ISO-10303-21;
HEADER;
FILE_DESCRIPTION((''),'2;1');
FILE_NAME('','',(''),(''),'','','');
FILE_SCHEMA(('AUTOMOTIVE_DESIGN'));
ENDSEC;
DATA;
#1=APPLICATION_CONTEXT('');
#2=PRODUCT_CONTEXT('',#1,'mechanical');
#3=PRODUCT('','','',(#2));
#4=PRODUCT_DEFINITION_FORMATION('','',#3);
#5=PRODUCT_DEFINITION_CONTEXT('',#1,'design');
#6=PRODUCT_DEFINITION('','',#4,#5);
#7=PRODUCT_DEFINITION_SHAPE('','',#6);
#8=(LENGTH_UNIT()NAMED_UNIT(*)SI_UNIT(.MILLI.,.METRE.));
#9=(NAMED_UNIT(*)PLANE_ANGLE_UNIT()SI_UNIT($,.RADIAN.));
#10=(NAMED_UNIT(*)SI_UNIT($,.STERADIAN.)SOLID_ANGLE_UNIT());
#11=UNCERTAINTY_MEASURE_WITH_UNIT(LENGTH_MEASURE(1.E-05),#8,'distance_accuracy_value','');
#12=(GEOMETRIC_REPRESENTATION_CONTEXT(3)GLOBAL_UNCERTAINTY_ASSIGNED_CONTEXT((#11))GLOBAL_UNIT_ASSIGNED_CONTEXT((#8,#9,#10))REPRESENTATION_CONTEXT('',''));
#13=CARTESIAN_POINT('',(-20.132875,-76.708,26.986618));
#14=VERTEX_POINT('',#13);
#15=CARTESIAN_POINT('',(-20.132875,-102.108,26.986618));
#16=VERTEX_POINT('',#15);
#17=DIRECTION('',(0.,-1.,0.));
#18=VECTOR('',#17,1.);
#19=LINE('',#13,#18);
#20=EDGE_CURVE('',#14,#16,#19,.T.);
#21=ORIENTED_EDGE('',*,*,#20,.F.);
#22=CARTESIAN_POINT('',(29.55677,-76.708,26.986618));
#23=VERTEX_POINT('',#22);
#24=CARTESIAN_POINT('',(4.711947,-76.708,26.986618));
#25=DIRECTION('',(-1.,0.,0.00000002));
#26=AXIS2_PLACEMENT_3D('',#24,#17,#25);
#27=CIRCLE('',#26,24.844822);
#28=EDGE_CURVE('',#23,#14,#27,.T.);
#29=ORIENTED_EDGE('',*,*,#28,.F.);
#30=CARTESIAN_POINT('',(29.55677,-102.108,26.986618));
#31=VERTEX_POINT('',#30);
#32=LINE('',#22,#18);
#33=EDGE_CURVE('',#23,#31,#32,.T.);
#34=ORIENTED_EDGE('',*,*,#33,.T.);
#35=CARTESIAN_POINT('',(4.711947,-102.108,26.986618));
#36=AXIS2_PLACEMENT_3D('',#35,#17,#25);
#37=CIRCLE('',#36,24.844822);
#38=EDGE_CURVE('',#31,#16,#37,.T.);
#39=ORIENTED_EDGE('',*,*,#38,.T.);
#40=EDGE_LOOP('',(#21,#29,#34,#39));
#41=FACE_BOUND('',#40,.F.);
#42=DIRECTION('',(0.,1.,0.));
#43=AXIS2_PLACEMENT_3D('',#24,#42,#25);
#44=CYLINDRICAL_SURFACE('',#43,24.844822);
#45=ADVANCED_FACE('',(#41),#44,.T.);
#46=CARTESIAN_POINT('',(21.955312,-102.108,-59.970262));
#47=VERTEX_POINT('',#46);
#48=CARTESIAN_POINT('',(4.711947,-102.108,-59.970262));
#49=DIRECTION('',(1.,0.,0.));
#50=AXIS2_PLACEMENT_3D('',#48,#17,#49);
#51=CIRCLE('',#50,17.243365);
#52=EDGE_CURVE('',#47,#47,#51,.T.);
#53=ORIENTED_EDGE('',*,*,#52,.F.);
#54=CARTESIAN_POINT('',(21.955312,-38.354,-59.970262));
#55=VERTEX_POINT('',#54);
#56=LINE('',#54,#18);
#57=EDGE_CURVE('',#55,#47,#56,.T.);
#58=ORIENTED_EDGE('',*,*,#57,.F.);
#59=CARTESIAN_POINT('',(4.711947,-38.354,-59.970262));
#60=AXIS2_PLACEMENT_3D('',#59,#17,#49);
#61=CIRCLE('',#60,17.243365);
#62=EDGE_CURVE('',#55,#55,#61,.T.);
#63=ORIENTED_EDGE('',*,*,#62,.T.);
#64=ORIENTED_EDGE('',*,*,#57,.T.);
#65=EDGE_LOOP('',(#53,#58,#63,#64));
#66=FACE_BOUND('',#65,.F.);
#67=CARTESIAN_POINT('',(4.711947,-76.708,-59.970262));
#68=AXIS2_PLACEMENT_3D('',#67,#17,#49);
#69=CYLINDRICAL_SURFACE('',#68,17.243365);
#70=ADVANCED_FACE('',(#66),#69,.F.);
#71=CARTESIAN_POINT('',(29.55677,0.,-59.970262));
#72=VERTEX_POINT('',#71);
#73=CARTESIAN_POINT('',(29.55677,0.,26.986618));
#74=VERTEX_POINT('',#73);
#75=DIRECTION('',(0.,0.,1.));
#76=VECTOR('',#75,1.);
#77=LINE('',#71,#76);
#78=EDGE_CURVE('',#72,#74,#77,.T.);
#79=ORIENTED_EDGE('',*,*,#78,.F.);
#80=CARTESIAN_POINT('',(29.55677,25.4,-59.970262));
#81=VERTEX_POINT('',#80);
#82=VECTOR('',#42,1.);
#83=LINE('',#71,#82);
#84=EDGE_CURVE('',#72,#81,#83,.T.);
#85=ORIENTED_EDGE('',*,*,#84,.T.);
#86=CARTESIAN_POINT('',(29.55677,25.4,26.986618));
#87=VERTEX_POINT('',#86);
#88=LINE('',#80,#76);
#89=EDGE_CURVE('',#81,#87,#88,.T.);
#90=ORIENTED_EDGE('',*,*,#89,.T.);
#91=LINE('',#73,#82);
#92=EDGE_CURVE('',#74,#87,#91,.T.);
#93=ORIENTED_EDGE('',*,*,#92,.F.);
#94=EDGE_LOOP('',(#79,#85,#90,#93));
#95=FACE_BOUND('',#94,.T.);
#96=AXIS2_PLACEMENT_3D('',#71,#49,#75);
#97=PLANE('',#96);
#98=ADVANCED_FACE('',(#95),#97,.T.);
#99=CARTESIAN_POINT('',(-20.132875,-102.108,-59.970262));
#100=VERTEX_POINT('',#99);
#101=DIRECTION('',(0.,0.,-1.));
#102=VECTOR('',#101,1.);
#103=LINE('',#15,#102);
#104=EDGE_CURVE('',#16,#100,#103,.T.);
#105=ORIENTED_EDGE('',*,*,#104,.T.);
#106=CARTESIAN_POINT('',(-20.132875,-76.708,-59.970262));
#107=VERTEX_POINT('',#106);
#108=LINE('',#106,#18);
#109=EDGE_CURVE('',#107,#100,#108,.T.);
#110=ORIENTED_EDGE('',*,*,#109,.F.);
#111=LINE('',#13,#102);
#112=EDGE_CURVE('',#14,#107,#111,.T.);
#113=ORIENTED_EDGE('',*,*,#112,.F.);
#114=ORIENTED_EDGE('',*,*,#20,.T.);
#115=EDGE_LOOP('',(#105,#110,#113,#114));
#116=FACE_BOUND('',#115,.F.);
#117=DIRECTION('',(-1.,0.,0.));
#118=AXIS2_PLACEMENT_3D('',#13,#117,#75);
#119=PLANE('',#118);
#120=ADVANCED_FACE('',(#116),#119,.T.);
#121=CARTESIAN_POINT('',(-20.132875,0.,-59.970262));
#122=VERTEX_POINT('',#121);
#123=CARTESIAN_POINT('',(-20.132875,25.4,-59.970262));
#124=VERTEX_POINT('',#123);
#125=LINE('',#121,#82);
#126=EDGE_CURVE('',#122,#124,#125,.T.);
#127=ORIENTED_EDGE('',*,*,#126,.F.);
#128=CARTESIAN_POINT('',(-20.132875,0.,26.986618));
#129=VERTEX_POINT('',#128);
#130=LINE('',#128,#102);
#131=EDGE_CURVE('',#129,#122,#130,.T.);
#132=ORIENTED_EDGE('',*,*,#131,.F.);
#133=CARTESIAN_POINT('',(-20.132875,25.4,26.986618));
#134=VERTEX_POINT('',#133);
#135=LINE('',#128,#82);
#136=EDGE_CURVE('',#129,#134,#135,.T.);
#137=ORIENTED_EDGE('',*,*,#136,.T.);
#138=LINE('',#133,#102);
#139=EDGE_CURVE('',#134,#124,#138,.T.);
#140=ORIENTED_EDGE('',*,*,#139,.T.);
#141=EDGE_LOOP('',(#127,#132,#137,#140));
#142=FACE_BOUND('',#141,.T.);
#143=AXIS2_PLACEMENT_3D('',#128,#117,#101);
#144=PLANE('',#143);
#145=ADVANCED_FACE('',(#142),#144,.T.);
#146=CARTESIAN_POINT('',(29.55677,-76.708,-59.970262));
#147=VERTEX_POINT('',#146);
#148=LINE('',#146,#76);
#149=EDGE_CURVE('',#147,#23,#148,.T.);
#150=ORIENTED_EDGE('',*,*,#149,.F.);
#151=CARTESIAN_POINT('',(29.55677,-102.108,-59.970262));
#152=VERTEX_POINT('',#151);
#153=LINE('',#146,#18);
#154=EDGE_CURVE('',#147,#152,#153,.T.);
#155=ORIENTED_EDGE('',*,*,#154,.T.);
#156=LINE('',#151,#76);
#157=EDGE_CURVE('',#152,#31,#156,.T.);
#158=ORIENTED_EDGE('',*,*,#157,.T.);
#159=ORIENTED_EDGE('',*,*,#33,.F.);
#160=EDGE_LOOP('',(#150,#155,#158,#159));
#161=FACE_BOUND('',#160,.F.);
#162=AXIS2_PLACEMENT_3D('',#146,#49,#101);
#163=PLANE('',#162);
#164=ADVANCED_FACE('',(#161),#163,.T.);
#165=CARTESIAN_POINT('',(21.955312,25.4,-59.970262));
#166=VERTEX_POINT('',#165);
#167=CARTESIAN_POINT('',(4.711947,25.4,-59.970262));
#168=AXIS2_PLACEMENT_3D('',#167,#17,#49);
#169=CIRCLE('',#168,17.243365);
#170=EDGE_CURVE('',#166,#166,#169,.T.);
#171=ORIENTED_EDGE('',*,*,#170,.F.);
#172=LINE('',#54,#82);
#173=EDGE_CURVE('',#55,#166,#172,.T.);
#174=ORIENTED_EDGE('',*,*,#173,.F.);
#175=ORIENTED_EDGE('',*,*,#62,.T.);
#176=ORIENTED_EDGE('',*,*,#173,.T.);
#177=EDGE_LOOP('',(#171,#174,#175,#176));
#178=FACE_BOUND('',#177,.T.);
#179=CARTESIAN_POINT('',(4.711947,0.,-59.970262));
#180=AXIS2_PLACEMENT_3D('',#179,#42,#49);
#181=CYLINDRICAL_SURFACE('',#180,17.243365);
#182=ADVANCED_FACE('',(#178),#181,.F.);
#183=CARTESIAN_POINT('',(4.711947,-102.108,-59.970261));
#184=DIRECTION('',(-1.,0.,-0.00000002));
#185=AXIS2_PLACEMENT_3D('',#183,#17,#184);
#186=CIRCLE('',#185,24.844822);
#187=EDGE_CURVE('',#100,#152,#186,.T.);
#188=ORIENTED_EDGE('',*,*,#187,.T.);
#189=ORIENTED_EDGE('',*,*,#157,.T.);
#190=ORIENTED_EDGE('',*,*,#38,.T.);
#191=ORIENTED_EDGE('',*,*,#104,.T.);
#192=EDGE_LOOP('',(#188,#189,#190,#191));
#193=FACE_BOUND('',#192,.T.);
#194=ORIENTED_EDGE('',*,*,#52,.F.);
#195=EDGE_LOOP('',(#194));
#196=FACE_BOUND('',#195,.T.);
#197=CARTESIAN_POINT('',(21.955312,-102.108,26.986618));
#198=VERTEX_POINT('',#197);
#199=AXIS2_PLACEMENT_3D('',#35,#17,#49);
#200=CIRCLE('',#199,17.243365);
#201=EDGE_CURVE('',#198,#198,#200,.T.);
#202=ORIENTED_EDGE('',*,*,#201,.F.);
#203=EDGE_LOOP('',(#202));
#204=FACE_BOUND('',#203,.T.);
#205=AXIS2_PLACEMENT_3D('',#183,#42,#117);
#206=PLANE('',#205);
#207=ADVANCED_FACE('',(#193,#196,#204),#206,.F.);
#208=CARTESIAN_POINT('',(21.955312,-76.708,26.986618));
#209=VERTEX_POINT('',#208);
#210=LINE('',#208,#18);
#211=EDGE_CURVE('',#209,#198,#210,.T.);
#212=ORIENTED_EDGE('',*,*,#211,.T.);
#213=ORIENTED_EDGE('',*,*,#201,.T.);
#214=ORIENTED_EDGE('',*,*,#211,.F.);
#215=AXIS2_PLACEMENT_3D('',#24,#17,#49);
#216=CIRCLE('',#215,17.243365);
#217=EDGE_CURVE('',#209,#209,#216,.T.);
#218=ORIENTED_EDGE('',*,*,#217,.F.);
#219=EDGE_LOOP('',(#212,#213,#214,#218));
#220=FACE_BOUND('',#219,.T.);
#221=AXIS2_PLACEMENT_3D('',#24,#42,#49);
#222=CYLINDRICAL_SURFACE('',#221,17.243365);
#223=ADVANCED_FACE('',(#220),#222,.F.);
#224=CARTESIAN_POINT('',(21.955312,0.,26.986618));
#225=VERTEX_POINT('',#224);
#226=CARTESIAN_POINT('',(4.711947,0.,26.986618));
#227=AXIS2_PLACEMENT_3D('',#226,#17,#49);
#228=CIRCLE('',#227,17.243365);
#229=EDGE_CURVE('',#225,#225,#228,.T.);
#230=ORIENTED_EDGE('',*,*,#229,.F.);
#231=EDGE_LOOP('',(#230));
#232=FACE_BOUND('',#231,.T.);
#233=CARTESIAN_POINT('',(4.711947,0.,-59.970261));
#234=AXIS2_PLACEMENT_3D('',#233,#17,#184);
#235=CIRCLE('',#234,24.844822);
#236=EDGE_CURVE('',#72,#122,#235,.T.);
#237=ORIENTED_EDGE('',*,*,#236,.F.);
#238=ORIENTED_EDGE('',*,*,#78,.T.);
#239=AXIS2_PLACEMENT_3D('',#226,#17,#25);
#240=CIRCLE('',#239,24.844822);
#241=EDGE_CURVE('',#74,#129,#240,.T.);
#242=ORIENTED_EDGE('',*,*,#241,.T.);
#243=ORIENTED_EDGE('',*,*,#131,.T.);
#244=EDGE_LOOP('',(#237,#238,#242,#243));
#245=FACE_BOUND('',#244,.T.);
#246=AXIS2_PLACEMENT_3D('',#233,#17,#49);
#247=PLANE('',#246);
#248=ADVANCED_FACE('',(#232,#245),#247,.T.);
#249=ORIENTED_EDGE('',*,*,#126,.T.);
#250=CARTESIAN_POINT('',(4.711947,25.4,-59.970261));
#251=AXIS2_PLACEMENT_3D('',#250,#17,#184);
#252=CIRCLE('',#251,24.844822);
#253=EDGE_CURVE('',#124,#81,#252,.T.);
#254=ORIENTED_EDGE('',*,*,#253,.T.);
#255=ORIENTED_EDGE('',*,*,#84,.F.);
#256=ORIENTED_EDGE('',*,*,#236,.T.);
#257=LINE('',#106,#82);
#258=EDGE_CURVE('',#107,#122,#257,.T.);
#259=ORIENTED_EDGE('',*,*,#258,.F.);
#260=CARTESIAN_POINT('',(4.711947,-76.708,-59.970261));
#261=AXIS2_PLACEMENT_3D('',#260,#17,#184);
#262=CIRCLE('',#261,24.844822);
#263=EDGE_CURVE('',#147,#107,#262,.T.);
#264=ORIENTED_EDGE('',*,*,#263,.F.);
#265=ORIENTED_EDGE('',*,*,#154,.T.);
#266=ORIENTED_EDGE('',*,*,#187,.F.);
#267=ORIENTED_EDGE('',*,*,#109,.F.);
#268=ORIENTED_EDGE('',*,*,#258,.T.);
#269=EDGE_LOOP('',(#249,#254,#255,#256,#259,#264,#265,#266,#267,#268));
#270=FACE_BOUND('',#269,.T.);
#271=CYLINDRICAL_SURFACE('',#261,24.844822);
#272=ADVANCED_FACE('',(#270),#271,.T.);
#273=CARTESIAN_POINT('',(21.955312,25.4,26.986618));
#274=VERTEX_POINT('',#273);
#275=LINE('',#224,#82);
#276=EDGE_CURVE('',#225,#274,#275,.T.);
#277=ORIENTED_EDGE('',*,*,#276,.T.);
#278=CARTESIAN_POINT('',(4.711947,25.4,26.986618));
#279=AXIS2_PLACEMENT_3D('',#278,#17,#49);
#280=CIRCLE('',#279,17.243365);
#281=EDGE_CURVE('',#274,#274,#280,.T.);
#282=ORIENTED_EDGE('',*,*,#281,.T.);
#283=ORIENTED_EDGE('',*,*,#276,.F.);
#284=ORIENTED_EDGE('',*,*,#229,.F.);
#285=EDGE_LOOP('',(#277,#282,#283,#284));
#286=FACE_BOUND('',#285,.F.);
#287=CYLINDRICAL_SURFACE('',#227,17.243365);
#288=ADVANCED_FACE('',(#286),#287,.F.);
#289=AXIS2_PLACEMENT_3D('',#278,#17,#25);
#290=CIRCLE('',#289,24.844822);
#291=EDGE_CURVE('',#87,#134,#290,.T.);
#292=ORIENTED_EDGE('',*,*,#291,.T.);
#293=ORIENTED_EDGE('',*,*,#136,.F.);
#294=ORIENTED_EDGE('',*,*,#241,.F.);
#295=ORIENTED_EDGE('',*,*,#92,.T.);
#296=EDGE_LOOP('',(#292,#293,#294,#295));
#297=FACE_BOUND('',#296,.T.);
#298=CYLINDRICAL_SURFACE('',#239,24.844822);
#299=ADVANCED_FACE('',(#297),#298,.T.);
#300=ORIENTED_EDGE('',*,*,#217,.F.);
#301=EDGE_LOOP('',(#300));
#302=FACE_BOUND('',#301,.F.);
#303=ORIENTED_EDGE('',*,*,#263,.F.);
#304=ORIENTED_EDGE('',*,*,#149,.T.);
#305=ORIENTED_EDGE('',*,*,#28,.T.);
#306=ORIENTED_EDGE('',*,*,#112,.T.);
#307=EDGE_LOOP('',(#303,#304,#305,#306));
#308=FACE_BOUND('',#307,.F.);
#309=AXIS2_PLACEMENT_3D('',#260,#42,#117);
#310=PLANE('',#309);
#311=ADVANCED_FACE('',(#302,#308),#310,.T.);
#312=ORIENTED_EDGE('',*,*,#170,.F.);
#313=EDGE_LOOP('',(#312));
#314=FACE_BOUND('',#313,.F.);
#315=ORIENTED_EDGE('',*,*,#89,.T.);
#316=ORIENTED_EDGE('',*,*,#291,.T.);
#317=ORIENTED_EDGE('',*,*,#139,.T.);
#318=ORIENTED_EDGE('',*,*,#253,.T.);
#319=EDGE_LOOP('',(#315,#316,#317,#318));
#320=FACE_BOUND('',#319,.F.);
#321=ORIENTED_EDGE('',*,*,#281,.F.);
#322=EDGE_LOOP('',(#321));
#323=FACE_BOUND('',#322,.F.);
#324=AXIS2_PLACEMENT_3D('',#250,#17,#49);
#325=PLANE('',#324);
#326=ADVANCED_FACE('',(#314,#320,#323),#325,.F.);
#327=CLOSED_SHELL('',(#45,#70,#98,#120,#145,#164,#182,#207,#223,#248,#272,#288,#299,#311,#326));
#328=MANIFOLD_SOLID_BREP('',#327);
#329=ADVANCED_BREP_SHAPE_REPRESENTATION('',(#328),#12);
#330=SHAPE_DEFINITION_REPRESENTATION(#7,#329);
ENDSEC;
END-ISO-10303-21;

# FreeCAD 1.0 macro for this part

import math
import FreeCAD as App
import Part
import Sketcher
Q = App.Units.Quantity

doc = App.newDocument("Part")
body = doc.addObject("PartDesign::Body", "Body")

sketch1 = body.newObject("Sketcher::SketchObject", "Sketch")
sketch1.AttachmentSupport = (doc.getObject("XZ_Plane"), [""])
sketch1.MapMode = "FlatFace"
sketch1.addGeometry(Part.ArcOfCircle(Part.Circle(App.Vector(5, -60, 0), App.Vector(0, 0, 1), 25), math.radians(-180), math.radians(0)), False)
sketch1.addGeometry(Part.LineSegment(App.Vector(30, -60, 0), App.Vector(30, 27, 0)), False)
sketch1.addGeometry(Part.ArcOfCircle(Part.Circle(App.Vector(5, 27, 0), App.Vector(0, 0, 1), 25), math.radians(0), math.radians(180)), False)
sketch1.addGeometry(Part.LineSegment(App.Vector(-20, 27, 0), App.Vector(-20, -60, 0)), False)
sketch1.addGeometry(Part.Circle(App.Vector(5, -60, 0), App.Vector(0, 0, 1), 17), False)
sketch1.addGeometry(Part.Circle(App.Vector(5, 27, 0), App.Vector(0, 0, 1), 17), False)
sketch1.addConstraint(Sketcher.Constraint("Tangent", 0, 2, 1, 1))
sketch1.addConstraint(Sketcher.Constraint("Tangent", 1, 2, 2, 1))
sketch1.addConstraint(Sketcher.Constraint("Tangent", 2, 2, 3, 1))
sketch1.addConstraint(Sketcher.Constraint("Tangent", 3, 2, 0, 1))
sketch1.addConstraint(Sketcher.Constraint("Vertical", 1))
sketch1.addConstraint(Sketcher.Constraint("Vertical", 3))
sketch1.addConstraint(Sketcher.Constraint("Coincident", 4, 3, 0, 3))
sketch1.addConstraint(Sketcher.Constraint("Coincident", 5, 3, 2, 3))
sketch1.addConstraint(Sketcher.Constraint("Equal", 4, 5))
sketch1.addConstraint(Sketcher.Constraint("Diameter", 4, 34.48673))
sketch1.addConstraint(Sketcher.Constraint("Radius", 0, 24.844822))
sketch1.addConstraint(Sketcher.Constraint("DistanceY", 1, 1, 1, 2, 86.95688))
sketch1.addConstraint(Sketcher.Constraint("DistanceY", 0, 3, -1, 1, 59.970261))
sketch1.addConstraint(Sketcher.Constraint("DistanceX", -1, 1, 0, 2, 29.55677))
pad1 = body.newObject("PartDesign::Pad", "Pad")
pad1.Profile = sketch1
pad1.Length = Q("1 in")
pad1.Reversed = True

sketch2 = body.newObject("Sketcher::SketchObject", "Sketch001")
sketch2.AttachmentSupport = (doc.getObject("XZ_Plane"), [""])
sketch2.MapMode = "FlatFace"
sketch2.addGeometry(Part.Circle(App.Vector(5, -60, 0), App.Vector(0, 0, 1), 25), False)
sketch2.addGeometry(Part.Circle(App.Vector(5, -60, 0), App.Vector(0, 0, 1), 17), False)
sketch2.addConstraint(Sketcher.Constraint("Coincident", 1, 3, 0, 3))
sketch2.addConstraint(Sketcher.Constraint("Diameter", 1, 34.48673))
sketch2.addConstraint(Sketcher.Constraint("Diameter", 0, 49.689645))
sketch2.addConstraint(Sketcher.Constraint("DistanceY", 0, 3, -1, 1, 59.970261))
sketch2.addConstraint(Sketcher.Constraint("DistanceX", -1, 1, 0, 3, 4.711947))
pad2 = body.newObject("PartDesign::Pad", "Pad001")
pad2.Profile = sketch2
pad2.Length = Q("1.51 in")
body2 = doc.addObject("PartDesign::Body", "Body001")
doc.recompute()

body2.BaseFeature = body
doc.recompute()

mirroring = doc.addObject("Part::Mirroring", "Mirroring")
mirroring.Source = body
mirroring.Base = App.Vector(4.711947, -38.354, -59.970262)
mirroring.Normal = App.Vector(0, -1, 0)
body3 = doc.addObject("PartDesign::Body", "Body002")
body3.BaseFeature = mirroring
boolean = body2.newObject("PartDesign::Boolean", "Boolean")
boolean.Type = "Fuse"
boolean.addObjects([body3])
doc.recompute()
mirroring.Visibility = False

doc.recompute()
